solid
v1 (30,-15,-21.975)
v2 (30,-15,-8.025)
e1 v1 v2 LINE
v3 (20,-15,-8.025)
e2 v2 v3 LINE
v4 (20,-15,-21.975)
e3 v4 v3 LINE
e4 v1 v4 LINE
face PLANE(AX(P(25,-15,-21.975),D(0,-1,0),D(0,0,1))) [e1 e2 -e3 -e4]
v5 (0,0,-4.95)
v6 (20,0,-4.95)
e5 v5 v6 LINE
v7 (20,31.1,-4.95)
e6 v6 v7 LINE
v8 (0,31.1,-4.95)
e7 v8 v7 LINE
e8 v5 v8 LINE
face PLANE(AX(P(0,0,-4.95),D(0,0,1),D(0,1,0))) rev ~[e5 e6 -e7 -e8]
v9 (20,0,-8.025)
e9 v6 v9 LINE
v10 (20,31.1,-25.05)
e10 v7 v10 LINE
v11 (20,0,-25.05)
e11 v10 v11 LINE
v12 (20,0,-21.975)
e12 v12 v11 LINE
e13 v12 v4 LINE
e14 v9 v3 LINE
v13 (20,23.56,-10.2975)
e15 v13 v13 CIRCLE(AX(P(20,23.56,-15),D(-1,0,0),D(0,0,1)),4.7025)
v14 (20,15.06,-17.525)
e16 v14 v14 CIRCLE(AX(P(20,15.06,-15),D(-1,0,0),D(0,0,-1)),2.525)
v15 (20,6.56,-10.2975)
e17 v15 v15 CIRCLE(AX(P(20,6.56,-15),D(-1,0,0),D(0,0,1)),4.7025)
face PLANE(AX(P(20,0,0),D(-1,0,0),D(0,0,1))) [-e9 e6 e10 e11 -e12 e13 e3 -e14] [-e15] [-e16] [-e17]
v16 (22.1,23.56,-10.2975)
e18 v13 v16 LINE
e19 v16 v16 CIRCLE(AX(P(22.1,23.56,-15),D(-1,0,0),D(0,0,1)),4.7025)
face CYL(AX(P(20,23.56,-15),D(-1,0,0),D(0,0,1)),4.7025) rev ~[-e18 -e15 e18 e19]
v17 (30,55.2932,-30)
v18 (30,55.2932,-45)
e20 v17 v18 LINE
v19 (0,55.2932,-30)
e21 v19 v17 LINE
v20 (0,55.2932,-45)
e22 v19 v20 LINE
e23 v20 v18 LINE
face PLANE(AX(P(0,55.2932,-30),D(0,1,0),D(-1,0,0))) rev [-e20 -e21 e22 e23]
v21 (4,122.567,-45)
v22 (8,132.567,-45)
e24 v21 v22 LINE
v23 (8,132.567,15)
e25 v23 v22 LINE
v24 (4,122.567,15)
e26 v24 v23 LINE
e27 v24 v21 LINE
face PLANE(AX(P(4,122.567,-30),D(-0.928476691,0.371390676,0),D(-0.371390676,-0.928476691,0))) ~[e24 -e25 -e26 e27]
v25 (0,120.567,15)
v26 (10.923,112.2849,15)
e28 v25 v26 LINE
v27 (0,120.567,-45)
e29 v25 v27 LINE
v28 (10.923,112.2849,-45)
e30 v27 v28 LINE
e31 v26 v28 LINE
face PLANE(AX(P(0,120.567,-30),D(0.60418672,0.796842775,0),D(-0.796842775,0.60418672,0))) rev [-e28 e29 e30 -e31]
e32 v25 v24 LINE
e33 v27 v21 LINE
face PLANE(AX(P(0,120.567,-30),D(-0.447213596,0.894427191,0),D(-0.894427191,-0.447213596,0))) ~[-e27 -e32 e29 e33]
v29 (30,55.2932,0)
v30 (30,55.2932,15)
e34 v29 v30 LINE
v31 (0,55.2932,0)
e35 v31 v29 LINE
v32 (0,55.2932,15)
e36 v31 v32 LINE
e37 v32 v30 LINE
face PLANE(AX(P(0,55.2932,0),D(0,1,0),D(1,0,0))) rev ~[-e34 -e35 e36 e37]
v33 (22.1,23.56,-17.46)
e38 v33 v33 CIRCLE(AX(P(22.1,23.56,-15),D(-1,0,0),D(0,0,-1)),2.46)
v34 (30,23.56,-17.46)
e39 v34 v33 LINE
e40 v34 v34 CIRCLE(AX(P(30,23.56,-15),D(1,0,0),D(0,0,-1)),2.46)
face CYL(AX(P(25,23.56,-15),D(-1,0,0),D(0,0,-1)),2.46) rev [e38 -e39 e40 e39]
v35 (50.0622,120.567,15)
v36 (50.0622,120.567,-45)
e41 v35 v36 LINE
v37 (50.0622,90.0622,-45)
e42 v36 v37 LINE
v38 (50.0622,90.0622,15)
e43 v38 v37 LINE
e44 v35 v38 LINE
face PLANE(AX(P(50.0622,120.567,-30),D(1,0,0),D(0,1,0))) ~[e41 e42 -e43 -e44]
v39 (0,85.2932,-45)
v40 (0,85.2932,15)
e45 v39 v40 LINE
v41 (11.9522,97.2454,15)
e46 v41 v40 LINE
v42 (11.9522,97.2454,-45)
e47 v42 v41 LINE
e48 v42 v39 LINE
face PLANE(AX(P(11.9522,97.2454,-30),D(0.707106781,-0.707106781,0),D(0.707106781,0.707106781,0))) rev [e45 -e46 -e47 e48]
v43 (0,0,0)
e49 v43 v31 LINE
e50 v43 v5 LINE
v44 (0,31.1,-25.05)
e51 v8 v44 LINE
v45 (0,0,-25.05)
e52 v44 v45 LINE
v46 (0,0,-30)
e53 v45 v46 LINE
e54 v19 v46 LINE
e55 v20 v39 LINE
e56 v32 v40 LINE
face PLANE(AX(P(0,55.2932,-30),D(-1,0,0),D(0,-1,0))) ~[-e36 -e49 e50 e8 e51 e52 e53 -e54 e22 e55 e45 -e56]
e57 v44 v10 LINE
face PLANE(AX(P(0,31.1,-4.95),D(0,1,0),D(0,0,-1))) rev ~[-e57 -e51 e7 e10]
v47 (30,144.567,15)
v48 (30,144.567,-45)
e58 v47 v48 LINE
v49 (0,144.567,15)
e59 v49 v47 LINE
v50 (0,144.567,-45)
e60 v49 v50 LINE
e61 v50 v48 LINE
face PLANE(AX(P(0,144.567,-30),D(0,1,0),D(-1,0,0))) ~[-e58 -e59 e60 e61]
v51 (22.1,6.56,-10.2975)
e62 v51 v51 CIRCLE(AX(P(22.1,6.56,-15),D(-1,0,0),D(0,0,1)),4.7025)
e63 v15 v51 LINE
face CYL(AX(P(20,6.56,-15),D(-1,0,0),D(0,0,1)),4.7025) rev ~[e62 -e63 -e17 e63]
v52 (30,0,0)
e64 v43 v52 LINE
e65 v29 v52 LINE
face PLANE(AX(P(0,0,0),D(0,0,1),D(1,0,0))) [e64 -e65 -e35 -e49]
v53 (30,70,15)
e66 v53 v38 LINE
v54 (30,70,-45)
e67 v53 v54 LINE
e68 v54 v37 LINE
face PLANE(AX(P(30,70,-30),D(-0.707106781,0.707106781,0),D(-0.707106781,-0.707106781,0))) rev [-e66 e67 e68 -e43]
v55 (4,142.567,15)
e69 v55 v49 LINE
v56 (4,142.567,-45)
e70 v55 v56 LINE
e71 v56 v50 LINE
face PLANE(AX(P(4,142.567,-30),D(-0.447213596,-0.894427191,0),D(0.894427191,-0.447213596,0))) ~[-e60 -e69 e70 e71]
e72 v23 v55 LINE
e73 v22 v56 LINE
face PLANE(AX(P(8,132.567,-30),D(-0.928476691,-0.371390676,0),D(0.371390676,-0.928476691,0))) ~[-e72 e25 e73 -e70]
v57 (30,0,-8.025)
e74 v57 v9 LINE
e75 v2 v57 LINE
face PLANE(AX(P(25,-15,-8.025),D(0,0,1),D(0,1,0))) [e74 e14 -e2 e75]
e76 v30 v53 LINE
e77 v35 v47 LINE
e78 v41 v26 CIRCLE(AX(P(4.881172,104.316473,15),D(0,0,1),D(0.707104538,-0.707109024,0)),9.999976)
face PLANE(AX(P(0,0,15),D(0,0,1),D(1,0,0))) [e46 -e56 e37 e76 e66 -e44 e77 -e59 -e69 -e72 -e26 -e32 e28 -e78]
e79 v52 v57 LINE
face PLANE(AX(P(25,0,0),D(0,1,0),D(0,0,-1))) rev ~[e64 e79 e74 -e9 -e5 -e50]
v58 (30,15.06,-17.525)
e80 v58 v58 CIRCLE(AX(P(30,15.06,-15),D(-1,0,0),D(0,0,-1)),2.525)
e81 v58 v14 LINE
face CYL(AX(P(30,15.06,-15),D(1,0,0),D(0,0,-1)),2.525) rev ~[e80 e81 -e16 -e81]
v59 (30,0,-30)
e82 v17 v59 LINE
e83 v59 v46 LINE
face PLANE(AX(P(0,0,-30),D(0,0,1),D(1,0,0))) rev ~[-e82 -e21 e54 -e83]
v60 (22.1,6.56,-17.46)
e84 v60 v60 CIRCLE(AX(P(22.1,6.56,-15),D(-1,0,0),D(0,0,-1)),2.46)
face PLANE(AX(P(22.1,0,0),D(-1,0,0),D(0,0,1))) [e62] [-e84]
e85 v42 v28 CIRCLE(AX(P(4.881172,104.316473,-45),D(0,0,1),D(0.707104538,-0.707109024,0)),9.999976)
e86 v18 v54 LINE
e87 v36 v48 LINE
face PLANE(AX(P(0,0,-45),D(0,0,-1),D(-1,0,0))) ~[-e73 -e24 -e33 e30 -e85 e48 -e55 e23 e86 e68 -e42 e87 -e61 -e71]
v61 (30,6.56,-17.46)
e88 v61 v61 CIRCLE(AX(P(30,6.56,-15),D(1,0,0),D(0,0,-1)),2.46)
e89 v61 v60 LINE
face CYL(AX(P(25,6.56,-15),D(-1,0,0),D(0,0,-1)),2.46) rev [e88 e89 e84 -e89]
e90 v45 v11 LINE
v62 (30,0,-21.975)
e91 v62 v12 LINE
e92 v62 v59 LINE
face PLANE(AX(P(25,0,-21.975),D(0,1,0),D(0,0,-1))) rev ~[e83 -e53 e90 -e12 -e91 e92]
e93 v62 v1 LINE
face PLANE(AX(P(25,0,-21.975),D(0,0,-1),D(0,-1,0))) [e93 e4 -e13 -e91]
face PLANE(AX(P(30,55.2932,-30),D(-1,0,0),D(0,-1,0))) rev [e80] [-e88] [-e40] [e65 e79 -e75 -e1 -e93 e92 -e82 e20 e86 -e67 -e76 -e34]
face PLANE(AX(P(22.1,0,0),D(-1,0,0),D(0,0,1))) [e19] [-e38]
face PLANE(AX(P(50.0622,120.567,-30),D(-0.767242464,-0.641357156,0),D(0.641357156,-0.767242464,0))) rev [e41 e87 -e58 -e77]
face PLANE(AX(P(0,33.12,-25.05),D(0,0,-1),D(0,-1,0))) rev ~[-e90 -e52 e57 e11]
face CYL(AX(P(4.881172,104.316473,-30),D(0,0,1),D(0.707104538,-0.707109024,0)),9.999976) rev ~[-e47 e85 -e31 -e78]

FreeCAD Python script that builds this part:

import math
import FreeCAD as App
import Part
import Sketcher
Q = App.Units.Quantity

doc = App.newDocument("Part")
params = doc.addObject("Spreadsheet::Sheet", "Params")
for row, (alias, value) in enumerate([
    ("sketch1_width", "25 mm"),
    ("sketch1_height", "40 mm"),
    ("pad1_length", "30 mm"),
    ("sketch2_diameter", "4.92 mm"),
    ("pocket1_length", "30 mm"),
    ("sketch3_height", "20.1 mm"),
    ("sketch3_width", "33.12 mm"),
    ("pocket2_length", "20 mm"),
    ("sketch4_height", "13.95 mm"),
    ("sketch4_width", "5 mm"),
    ("pad2_length", "15 mm"),
    ("sketch5_diameter", "4.92 mm"),
    ("pocket3_length", "2.1 mm"),
    ("sketch6_diameter", "4.92 mm"),
    ("pocket4_length", "10 mm"),
    ("sketch7_diameter", "4.92 mm"),
    ("pocket5_length", "2.1 mm"),
    ("sketch8_diameter", "4.92 mm"),
    ("sketch8_width", "40 mm"),
    ("sketch8_width2", "15 mm"),
    ("sketch8_height", "30 mm"),
    ("sketch8_height2", "13.95 mm"),
    ("pad3_length", "5 mm"),
    ("sketch9_width", "30 mm"),
    ("pad4_length", "30 mm"),
    ("sketch10_diameter", "5.05 mm"),
    ("pocket6_length", "30 mm"),
    ("sketch11_width", "2.02 mm"),
    ("sketch11_height", "20.1 mm"),
    ("pad5_length", "20 mm"),
    ("sketch12_radius", "10 mm"),
    ("sketch12_width", "30 mm"),
    ("pad6_length", "30 mm"),
    ("sketch13_width", "30 mm"),
    ("sketch13_radius", "10 mm"),
    ("pad7_length", "15 mm"),
], start=1):
    params.set(f"A{row}", alias)
    params.set(f"B{row}", "=" + value)
    params.setAlias(f"B{row}", alias)

body = doc.addObject("PartDesign::Body", "Body")

# Sketch on XY plane
sketch1 = body.newObject("Sketcher::SketchObject", "Sketch")
sketch1.AttachmentSupport = (doc.getObject("XY_Plane"), [""])
sketch1.MapMode = "FlatFace"
sketch1.addGeometry([
    Part.LineSegment(App.Vector(0, 40, 0), App.Vector(0, 0, 0)),
    Part.LineSegment(App.Vector(0, 0, 0), App.Vector(25, 0, 0)),
    Part.LineSegment(App.Vector(25, 0, 0), App.Vector(25, 40, 0)),
    Part.LineSegment(App.Vector(25, 40, 0), App.Vector(0, 40, 0)),
], False)
sketch1.addConstraint([
    Sketcher.Constraint("Coincident", 0, 2, 1, 1),
    Sketcher.Constraint("Coincident", 1, 2, 2, 1),
    Sketcher.Constraint("Coincident", 2, 2, 3, 1),
    Sketcher.Constraint("Coincident", 3, 2, 0, 1),
    Sketcher.Constraint("Vertical", 0),
    Sketcher.Constraint("Horizontal", 1),
    Sketcher.Constraint("Vertical", 2),
    Sketcher.Constraint("Horizontal", 3),
    Sketcher.Constraint("Coincident", 0, 2, -1, 1),
    Sketcher.Constraint("DistanceX", 1, 1, 1, 2, Q("25 mm")),
    Sketcher.Constraint("DistanceY", 0, 2, 0, 1, Q("40 mm")),
])
sketch1.setExpression("Constraints[9]", "Params.sketch1_width")
sketch1.setExpression("Constraints[10]", "Params.sketch1_height")
pad1 = body.newObject("PartDesign::Pad", "Pad")
pad1.Profile = sketch1
pad1.setExpression("Length", "Params.pad1_length")
pad1.Reversed = True

# Sketch on YZ plane
sketch2 = body.newObject("Sketcher::SketchObject", "Sketch001")
sketch2.AttachmentSupport = (doc.getObject("YZ_Plane"), [""])
sketch2.MapMode = "FlatFace"
sketch2.AttachmentOffset = App.Placement(App.Vector(0, 0, 25), App.Rotation())
sketch2.addGeometry(Part.Circle(App.Vector(6.6, -15, 0), App.Vector(0, 0, 1), 2.5), False)
sketch2.addConstraint([
    Sketcher.Constraint("Diameter", 0, Q("4.92 mm")),
    Sketcher.Constraint("DistanceY", 0, 3, -1, 1, Q("15 mm")),
    Sketcher.Constraint("DistanceX", -1, 1, 0, 3, Q("6.56 mm")),
])
sketch2.setExpression("Constraints[0]", "Params.sketch2_diameter")
pocket1 = body.newObject("PartDesign::Pocket", "Pocket")
pocket1.Profile = sketch2
pocket1.setExpression("Length", "Params.pocket1_length")

# Sketch on YZ plane
sketch3 = body.newObject("Sketcher::SketchObject", "Sketch002")
sketch3.AttachmentSupport = (doc.getObject("YZ_Plane"), [""])
sketch3.MapMode = "FlatFace"
sketch3.addGeometry([
    Part.LineSegment(App.Vector(0, -25, 0), App.Vector(0, -5, 0)),
    Part.LineSegment(App.Vector(0, -5, 0), App.Vector(33, -5, 0)),
    Part.LineSegment(App.Vector(33, -5, 0), App.Vector(33, -25, 0)),
    Part.LineSegment(App.Vector(33, -25, 0), App.Vector(0, -25, 0)),
], False)
sketch3.addConstraint([
    Sketcher.Constraint("Coincident", 0, 2, 1, 1),
    Sketcher.Constraint("Coincident", 1, 2, 2, 1),
    Sketcher.Constraint("Coincident", 2, 2, 3, 1),
    Sketcher.Constraint("Coincident", 3, 2, 0, 1),
    Sketcher.Constraint("Vertical", 0),
    Sketcher.Constraint("Horizontal", 1),
    Sketcher.Constraint("Vertical", 2),
    Sketcher.Constraint("Horizontal", 3),
    Sketcher.Constraint("PointOnObject", 0, 2, -2),
    Sketcher.Constraint("DistanceY", 0, 1, 0, 2, Q("20.1 mm")),
    Sketcher.Constraint("DistanceX", 1, 1, 1, 2, Q("33.12 mm")),
    Sketcher.Constraint("DistanceY", 0, 2, -1, 1, Q("4.95 mm")),
])
sketch3.setExpression("Constraints[9]", "Params.sketch3_height")
sketch3.setExpression("Constraints[10]", "Params.sketch3_width")
pocket2 = body.newObject("PartDesign::Pocket", "Pocket001")
pocket2.Profile = sketch3
pocket2.setExpression("Length", "Params.pocket2_length")
pocket2.Reversed = True

# Sketch on XZ plane
sketch4 = body.newObject("Sketcher::SketchObject", "Sketch003")
sketch4.AttachmentSupport = (doc.getObject("XZ_Plane"), [""])
sketch4.MapMode = "FlatFace"
sketch4.addGeometry([
    Part.LineSegment(App.Vector(25, -8, 0), App.Vector(20, -8, 0)),
    Part.LineSegment(App.Vector(20, -8, 0), App.Vector(20, -22, 0)),
    Part.LineSegment(App.Vector(20, -22, 0), App.Vector(25, -22, 0)),
    Part.LineSegment(App.Vector(25, -22, 0), App.Vector(25, -8, 0)),
], False)
sketch4.addConstraint([
    Sketcher.Constraint("Coincident", 0, 2, 1, 1),
    Sketcher.Constraint("Coincident", 1, 2, 2, 1),
    Sketcher.Constraint("Coincident", 2, 2, 3, 1),
    Sketcher.Constraint("Coincident", 3, 2, 0, 1),
    Sketcher.Constraint("Horizontal", 0),
    Sketcher.Constraint("Vertical", 1),
    Sketcher.Constraint("Horizontal", 2),
    Sketcher.Constraint("Vertical", 3),
    Sketcher.Constraint("DistanceY", 1, 2, 1, 1, Q("13.95 mm")),
    Sketcher.Constraint("DistanceX", 0, 2, 0, 1, Q("5 mm")),
    Sketcher.Constraint("DistanceX", -1, 1, 0, 2, Q("20 mm")),
    Sketcher.Constraint("DistanceY", 0, 2, -1, 1, Q("8.025 mm")),
])
sketch4.setExpression("Constraints[8]", "Params.sketch4_height")
sketch4.setExpression("Constraints[9]", "Params.sketch4_width")
pad2 = body.newObject("PartDesign::Pad", "Pad001")
pad2.Profile = sketch4
pad2.setExpression("Length", "Params.pad2_length")

# Sketch on YZ plane
sketch5 = body.newObject("Sketcher::SketchObject", "Sketch004")
sketch5.AttachmentSupport = (doc.getObject("YZ_Plane"), [""])
sketch5.MapMode = "FlatFace"
sketch5.AttachmentOffset = App.Placement(App.Vector(0, 0, 20), App.Rotation())
sketch5.addGeometry([
    Part.Circle(App.Vector(6.6, -15, 0), App.Vector(0, 0, 1), 4.7),
    Part.Circle(App.Vector(6.6, -15, 0), App.Vector(0, 0, 1), 2.5),
], False)
sketch5.addConstraint([
    Sketcher.Constraint("Coincident", 1, 3, 0, 3),
    Sketcher.Constraint("Diameter", 0, Q("9.405 mm")),
    Sketcher.Constraint("Diameter", 1, Q("4.92 mm")),
    Sketcher.Constraint("DistanceY", 0, 3, -1, 1, Q("15 mm")),
    Sketcher.Constraint("DistanceX", -1, 1, 0, 3, Q("6.56 mm")),
])
sketch5.setExpression("Constraints[2]", "Params.sketch5_diameter")
pocket3 = body.newObject("PartDesign::Pocket", "Pocket002")
pocket3.Profile = sketch5
pocket3.setExpression("Length", "Params.pocket3_length")
pocket3.Reversed = True

# Sketch on YZ plane
sketch6 = body.newObject("Sketcher::SketchObject", "Sketch005")
sketch6.AttachmentSupport = (doc.getObject("YZ_Plane"), [""])
sketch6.MapMode = "FlatFace"
sketch6.AttachmentOffset = App.Placement(App.Vector(0, 0, 25), App.Rotation())
sketch6.addGeometry(Part.Circle(App.Vector(23.6, -15, 0), App.Vector(0, 0, 1), 2.5), False)
sketch6.addConstraint([
    Sketcher.Constraint("Diameter", 0, Q("4.92 mm")),
    Sketcher.Constraint("DistanceY", 0, 3, -1, 1, Q("15 mm")),
    Sketcher.Constraint("DistanceX", -1, 1, 0, 3, Q("23.56 mm")),
])
sketch6.setExpression("Constraints[0]", "Params.sketch6_diameter")
pocket4 = body.newObject("PartDesign::Pocket", "Pocket003")
pocket4.Profile = sketch6
pocket4.setExpression("Length", "Params.pocket4_length")

# Sketch on YZ plane
sketch7 = body.newObject("Sketcher::SketchObject", "Sketch006")
sketch7.AttachmentSupport = (doc.getObject("YZ_Plane"), [""])
sketch7.MapMode = "FlatFace"
sketch7.AttachmentOffset = App.Placement(App.Vector(0, 0, 20), App.Rotation())
sketch7.addGeometry([
    Part.Circle(App.Vector(23.6, -15, 0), App.Vector(0, 0, 1), 4.7),
    Part.Circle(App.Vector(23.6, -15, 0), App.Vector(0, 0, 1), 2.5),
], False)
sketch7.addConstraint([
    Sketcher.Constraint("Coincident", 1, 3, 0, 3),
    Sketcher.Constraint("Diameter", 0, Q("9.405 mm")),
    Sketcher.Constraint("Diameter", 1, Q("4.92 mm")),
    Sketcher.Constraint("DistanceY", 0, 3, -1, 1, Q("15 mm")),
    Sketcher.Constraint("DistanceX", -1, 1, 0, 3, Q("23.56 mm")),
])
sketch7.setExpression("Constraints[2]", "Params.sketch7_diameter")
pocket5 = body.newObject("PartDesign::Pocket", "Pocket004")
pocket5.Profile = sketch7
pocket5.setExpression("Length", "Params.pocket5_length")
pocket5.Reversed = True

# Sketch on YZ plane
sketch8 = body.newObject("Sketcher::SketchObject", "Sketch007")
sketch8.AttachmentSupport = (doc.getObject("YZ_Plane"), [""])
sketch8.MapMode = "FlatFace"
sketch8.AttachmentOffset = App.Placement(App.Vector(0, 0, 25), App.Rotation())
sketch8.addGeometry([
    Part.LineSegment(App.Vector(0, -30, 0), App.Vector(40, -30, 0)),  # 0
    Part.LineSegment(App.Vector(40, -30, 0), App.Vector(40, 0, 0)),  # 1
    Part.LineSegment(App.Vector(40, 0, 0), App.Vector(0, 0, 0)),  # 2
    Part.LineSegment(App.Vector(0, 0, 0), App.Vector(0, -8, 0)),  # 3
    Part.LineSegment(App.Vector(0, -8, 0), App.Vector(-15, -8, 0)),  # 4
    Part.LineSegment(App.Vector(-15, -8, 0), App.Vector(-15, -22, 0)),  # 5
    Part.LineSegment(App.Vector(-15, -22, 0), App.Vector(0, -22, 0)),  # 6
    Part.LineSegment(App.Vector(0, -22, 0), App.Vector(0, -30, 0)),  # 7
    Part.Circle(App.Vector(6.6, -15, 0), App.Vector(0, 0, 1), 2.5),  # 8
    Part.Circle(App.Vector(23.6, -15, 0), App.Vector(0, 0, 1), 2.5),  # 9
], False)
sketch8.addConstraint([
    Sketcher.Constraint("Coincident", 0, 2, 1, 1),
    Sketcher.Constraint("Coincident", 1, 2, 2, 1),
    Sketcher.Constraint("Coincident", 2, 2, 3, 1),
    Sketcher.Constraint("Coincident", 3, 2, 4, 1),
    Sketcher.Constraint("Coincident", 4, 2, 5, 1),
    Sketcher.Constraint("Coincident", 5, 2, 6, 1),
    Sketcher.Constraint("Coincident", 6, 2, 7, 1),
    Sketcher.Constraint("Coincident", 7, 2, 0, 1),
    Sketcher.Constraint("Horizontal", 0),
    Sketcher.Constraint("Vertical", 1),
    Sketcher.Constraint("Horizontal", 2),
    Sketcher.Constraint("Vertical", 3),
    Sketcher.Constraint("Horizontal", 4),
    Sketcher.Constraint("Vertical", 5),
    Sketcher.Constraint("Horizontal", 6),
    Sketcher.Constraint("Vertical", 7),
    Sketcher.Constraint("Coincident", 2, 2, -1, 1),
    Sketcher.Constraint("Equal", 8, 9),
    Sketcher.Constraint("PointOnObject", 6, 2, -2),
    Sketcher.Constraint("Horizontal", 8, 3, 9, 3),
    Sketcher.Constraint("Equal", 3, 7),
    Sketcher.Constraint("Diameter", 8, Q("4.92 mm")),
    Sketcher.Constraint("DistanceX", 0, 1, 0, 2, Q("40 mm")),
    Sketcher.Constraint("DistanceX", 4, 2, 4, 1, Q("15 mm")),
    Sketcher.Constraint("DistanceY", 1, 1, 1, 2, Q("30 mm")),
    Sketcher.Constraint("DistanceY", 8, 3, -1, 1, Q("15 mm")),
    Sketcher.Constraint("DistanceX", 8, 3, 9, 3, Q("17 mm")),
    Sketcher.Constraint("DistanceY", 5, 2, 5, 1, Q("13.95 mm")),
    Sketcher.Constraint("DistanceX", -1, 1, 8, 3, Q("6.56 mm")),
])
sketch8.setExpression("Constraints[21]", "Params.sketch8_diameter")
sketch8.setExpression("Constraints[22]", "Params.sketch8_width")
sketch8.setExpression("Constraints[23]", "Params.sketch8_width2")
sketch8.setExpression("Constraints[24]", "Params.sketch8_height")
sketch8.setExpression("Constraints[27]", "Params.sketch8_height2")
pad3 = body.newObject("PartDesign::Pad", "Pad002")
pad3.Profile = sketch8
pad3.setExpression("Length", "Params.pad3_length")

# Sketch on XZ plane
sketch9 = body.newObject("Sketcher::SketchObject", "Sketch008")
sketch9.AttachmentSupport = (doc.getObject("XZ_Plane"), [""])
sketch9.MapMode = "FlatFace"
sketch9.AttachmentOffset = App.Placement(App.Vector(0, 0, -40), App.Rotation())
sketch9.addGeometry([
    Part.LineSegment(App.Vector(30, -30, 0), App.Vector(0, -30, 0)),
    Part.LineSegment(App.Vector(0, -30, 0), App.Vector(0, 0, 0)),
    Part.LineSegment(App.Vector(0, 0, 0), App.Vector(30, 0, 0)),
    Part.LineSegment(App.Vector(30, 0, 0), App.Vector(30, -30, 0)),
], False)
sketch9.addConstraint([
    Sketcher.Constraint("Coincident", 0, 2, 1, 1),
    Sketcher.Constraint("Coincident", 1, 2, 2, 1),
    Sketcher.Constraint("Coincident", 2, 2, 3, 1),
    Sketcher.Constraint("Coincident", 3, 2, 0, 1),
    Sketcher.Constraint("Horizontal", 0),
    Sketcher.Constraint("Vertical", 1),
    Sketcher.Constraint("Horizontal", 2),
    Sketcher.Constraint("Vertical", 3),
    Sketcher.Constraint("Coincident", 1, 2, -1, 1),
    Sketcher.Constraint("Equal", 2, 1),
    Sketcher.Constraint("DistanceX", 0, 2, 0, 1, Q("30 mm")),
])
sketch9.setExpression("Constraints[10]", "Params.sketch9_width")
pad4 = body.newObject("PartDesign::Pad", "Pad003")
pad4.Profile = sketch9
pad4.setExpression("Length", "Params.pad4_length")
pad4.Reversed = True

# Sketch on YZ plane
sketch10 = body.newObject("Sketcher::SketchObject", "Sketch009")
sketch10.AttachmentSupport = (doc.getObject("YZ_Plane"), [""])
sketch10.MapMode = "FlatFace"
sketch10.AttachmentOffset = App.Placement(App.Vector(0, 0, 30), App.Rotation())
sketch10.addGeometry(Part.Circle(App.Vector(15.1, -15, 0), App.Vector(0, 0, 1), 2.5), False)
sketch10.addConstraint([
    Sketcher.Constraint("Diameter", 0, Q("5.05 mm")),
    Sketcher.Constraint("DistanceY", 0, 3, -1, 1, Q("15 mm")),
    Sketcher.Constraint("DistanceX", -1, 1, 0, 3, Q("15.06 mm")),
])
sketch10.setExpression("Constraints[0]", "Params.sketch10_diameter")
pocket6 = body.newObject("PartDesign::Pocket", "Pocket005")
pocket6.Profile = sketch10
pocket6.setExpression("Length", "Params.pocket6_length")

# Sketch on YZ plane
sketch11 = body.newObject("Sketcher::SketchObject", "Sketch010")
sketch11.AttachmentSupport = (doc.getObject("YZ_Plane"), [""])
sketch11.MapMode = "FlatFace"
sketch11.addGeometry([
    Part.LineSegment(App.Vector(33.1, -5, 0), App.Vector(33.1, -25.1, 0)),
    Part.LineSegment(App.Vector(33.1, -25.1, 0), App.Vector(31.1, -25.1, 0)),
    Part.LineSegment(App.Vector(31.1, -25.1, 0), App.Vector(31.1, -5, 0)),
    Part.LineSegment(App.Vector(31.1, -5, 0), App.Vector(33.1, -5, 0)),
], False)
sketch11.addConstraint([
    Sketcher.Constraint("Coincident", 0, 2, 1, 1),
    Sketcher.Constraint("Coincident", 1, 2, 2, 1),
    Sketcher.Constraint("Coincident", 2, 2, 3, 1),
    Sketcher.Constraint("Coincident", 3, 2, 0, 1),
    Sketcher.Constraint("Vertical", 0),
    Sketcher.Constraint("Horizontal", 1),
    Sketcher.Constraint("Vertical", 2),
    Sketcher.Constraint("Horizontal", 3),
    Sketcher.Constraint("DistanceX", 1, 2, 1, 1, Q("2.02 mm")),
    Sketcher.Constraint("DistanceY", 0, 2, 0, 1, Q("20.1 mm")),
    Sketcher.Constraint("DistanceX", -1, 1, 1, 2, Q("31.1 mm")),
    Sketcher.Constraint("DistanceY", 0, 2, -1, 1, Q("25.05 mm")),
])
sketch11.setExpression("Constraints[8]", "Params.sketch11_width")
sketch11.setExpression("Constraints[9]", "Params.sketch11_height")
pad5 = body.newObject("PartDesign::Pad", "Pad004")
pad5.Profile = sketch11
pad5.setExpression("Length", "Params.pad5_length")

# Sketch on XY plane
sketch12 = body.newObject("Sketcher::SketchObject", "Sketch011")
sketch12.AttachmentSupport = (doc.getObject("XY_Plane"), [""])
sketch12.MapMode = "FlatFace"
sketch12.addGeometry([
    Part.LineSegment(App.Vector(0, 85.3, 0), App.Vector(0, 70, 0)),  # 0
    Part.LineSegment(App.Vector(0, 70, 0), App.Vector(30, 70, 0)),  # 1
    Part.LineSegment(App.Vector(30, 70, 0), App.Vector(50.1, 90.1, 0)),  # 2
    Part.LineSegment(App.Vector(50.1, 90.1, 0), App.Vector(50.1, 120.6, 0)),  # 3
    Part.LineSegment(App.Vector(50.1, 120.6, 0), App.Vector(30, 144.6, 0)),  # 4
    Part.LineSegment(App.Vector(30, 144.6, 0), App.Vector(0, 144.6, 0)),  # 5
    Part.LineSegment(App.Vector(0, 144.6, 0), App.Vector(4, 142.6, 0)),  # 6
    Part.LineSegment(App.Vector(4, 142.6, 0), App.Vector(8, 132.6, 0)),  # 7
    Part.LineSegment(App.Vector(8, 132.6, 0), App.Vector(4, 122.6, 0)),  # 8
    Part.LineSegment(App.Vector(4, 122.6, 0), App.Vector(0, 120.6, 0)),  # 9
    Part.LineSegment(App.Vector(0, 120.6, 0), App.Vector(10.9, 112.3, 0)),  # 10
    Part.ArcOfCircle(Part.Circle(App.Vector(4.9, 104.3, 0), App.Vector(0, 0, 1), 10), math.radians(-45), math.radians(53)),  # 11
    Part.LineSegment(App.Vector(12, 97.2, 0), App.Vector(0, 85.3, 0)),  # 12
], False)
sketch12.addConstraint([
    Sketcher.Constraint("Coincident", 0, 2, 1, 1),
    Sketcher.Constraint("Coincident", 1, 2, 2, 1),
    Sketcher.Constraint("Coincident", 2, 2, 3, 1),
    Sketcher.Constraint("Coincident", 3, 2, 4, 1),
    Sketcher.Constraint("Coincident", 4, 2, 5, 1),
    Sketcher.Constraint("Coincident", 5, 2, 6, 1),
    Sketcher.Constraint("Coincident", 6, 2, 7, 1),
    Sketcher.Constraint("Coincident", 7, 2, 8, 1),
    Sketcher.Constraint("Coincident", 8, 2, 9, 1),
    Sketcher.Constraint("Coincident", 9, 2, 10, 1),
    Sketcher.Constraint("Tangent", 10, 2, 11, 2),
    Sketcher.Constraint("Tangent", 11, 1, 12, 1),
    Sketcher.Constraint("Coincident", 12, 2, 0, 1),
    Sketcher.Constraint("Vertical", 0),
    Sketcher.Constraint("Horizontal", 1),
    Sketcher.Constraint("Vertical", 3),
    Sketcher.Constraint("Horizontal", 5),
    Sketcher.Constraint("PointOnObject", 0, 2, -2),
    Sketcher.Constraint("PointOnObject", 5, 2, -2),
    Sketcher.Constraint("PointOnObject", 9, 2, -2),
    Sketcher.Constraint("Parallel", 2, 12),
    Sketcher.Constraint("Horizontal", 3, 2, 9, 2),
    Sketcher.Constraint("Vertical", 1, 2, 4, 2),
    Sketcher.Constraint("Vertical", 6, 2, 8, 2),
    Sketcher.Constraint("Equal", 7, 8),
    Sketcher.Constraint("Equal", 6, 9),
    Sketcher.Constraint("Radius", 11, Q("10 mm")),
    Sketcher.Constraint("Angle", 2, Q("45 deg")),
    Sketcher.Constraint("DistanceY", 7, 2, 6, 2, Q("10 mm")),
    Sketcher.Constraint("DistanceX", 1, 1, 1, 2, Q("30 mm")),
    Sketcher.Constraint("DistanceY", -1, 1, 0, 2, Q("70 mm")),
    Sketcher.Constraint("DistanceX", -1, 1, 6, 2, Q("4 mm")),
    Sketcher.Constraint("DistanceX", -1, 1, 7, 2, Q("8 mm")),
    Sketcher.Constraint("DistanceY", 3, 2, 4, 2, Q("24 mm")),
    Sketcher.Constraint("Angle", 10, Q("-37.1703 deg")),
    Sketcher.Constraint("Distance", 12, Q("16.903 mm")),
    Sketcher.Constraint("DistanceY", 0, 2, 0, 1, Q("15.2932 mm")),
    Sketcher.Constraint("DistanceY", 3, 1, 3, 2, Q("30.5048 mm")),
])
sketch12.setExpression("Constraints[26]", "Params.sketch12_radius")
sketch12.setExpression("Constraints[29]", "Params.sketch12_width")
pad6 = body.newObject("PartDesign::Pad", "Pad005")
pad6.Profile = sketch12
pad6.setExpression("Length", "Params.pad6_length")
pad6.Reversed = True

# Sketch on XY plane
sketch13 = body.newObject("Sketcher::SketchObject", "Sketch012")
sketch13.AttachmentSupport = (doc.getObject("XY_Plane"), [""])
sketch13.MapMode = "FlatFace"
sketch13.addGeometry([
    Part.ArcOfCircle(Part.Circle(App.Vector(4.9, 104.3, 0), App.Vector(0, 0, 1), 10), math.radians(-45), math.radians(53)),  # 0
    Part.LineSegment(App.Vector(12, 97.2, 0), App.Vector(0, 85.3, 0)),  # 1
    Part.LineSegment(App.Vector(0, 85.3, 0), App.Vector(0, 55.3, 0)),  # 2
    Part.LineSegment(App.Vector(0, 55.3, 0), App.Vector(30, 55.3, 0)),  # 3
    Part.LineSegment(App.Vector(30, 55.3, 0), App.Vector(30, 70, 0)),  # 4
    Part.LineSegment(App.Vector(30, 70, 0), App.Vector(50.1, 90.1, 0)),  # 5
    Part.LineSegment(App.Vector(50.1, 90.1, 0), App.Vector(50.1, 120.6, 0)),  # 6
    Part.LineSegment(App.Vector(50.1, 120.6, 0), App.Vector(30, 144.6, 0)),  # 7
    Part.LineSegment(App.Vector(30, 144.6, 0), App.Vector(0, 144.6, 0)),  # 8
    Part.LineSegment(App.Vector(0, 144.6, 0), App.Vector(4, 142.6, 0)),  # 9
    Part.LineSegment(App.Vector(4, 142.6, 0), App.Vector(8, 132.6, 0)),  # 10
    Part.LineSegment(App.Vector(8, 132.6, 0), App.Vector(4, 122.6, 0)),  # 11
    Part.LineSegment(App.Vector(4, 122.6, 0), App.Vector(0, 120.6, 0)),  # 12
    Part.LineSegment(App.Vector(0, 120.6, 0), App.Vector(10.9, 112.3, 0)),  # 13
], False)
sketch13.addConstraint([
    Sketcher.Constraint("Tangent", 0, 1, 1, 1),
    Sketcher.Constraint("Coincident", 1, 2, 2, 1),
    Sketcher.Constraint("Coincident", 2, 2, 3, 1),
    Sketcher.Constraint("Coincident", 3, 2, 4, 1),
    Sketcher.Constraint("Coincident", 4, 2, 5, 1),
    Sketcher.Constraint("Coincident", 5, 2, 6, 1),
    Sketcher.Constraint("Coincident", 6, 2, 7, 1),
    Sketcher.Constraint("Coincident", 7, 2, 8, 1),
    Sketcher.Constraint("Coincident", 8, 2, 9, 1),
    Sketcher.Constraint("Coincident", 9, 2, 10, 1),
    Sketcher.Constraint("Coincident", 10, 2, 11, 1),
    Sketcher.Constraint("Coincident", 11, 2, 12, 1),
    Sketcher.Constraint("Coincident", 12, 2, 13, 1),
    Sketcher.Constraint("Tangent", 13, 2, 0, 2),
    Sketcher.Constraint("Vertical", 2),
    Sketcher.Constraint("Horizontal", 3),
    Sketcher.Constraint("Vertical", 4),
    Sketcher.Constraint("Vertical", 6),
    Sketcher.Constraint("Horizontal", 8),
    Sketcher.Constraint("PointOnObject", 1, 2, -2),
    Sketcher.Constraint("PointOnObject", 8, 2, -2),
    Sketcher.Constraint("PointOnObject", 12, 2, -2),
    Sketcher.Constraint("Parallel", 1, 5),
    Sketcher.Constraint("Horizontal", 6, 2, 12, 2),
    Sketcher.Constraint("Vertical", 4, 2, 7, 2),
    Sketcher.Constraint("Vertical", 9, 2, 11, 2),
    Sketcher.Constraint("Equal", 8, 2),
    Sketcher.Constraint("Equal", 10, 11),
    Sketcher.Constraint("Equal", 9, 12),
    Sketcher.Constraint("DistanceX", 3, 1, 3, 2, Q("30 mm")),
    Sketcher.Constraint("Radius", 0, Q("10 mm")),
    Sketcher.Constraint("Angle", 1, Q("-135 deg")),
    Sketcher.Constraint("DistanceY", -1, 1, 4, 2, Q("70 mm")),
    Sketcher.Constraint("DistanceX", -1, 1, 9, 2, Q("4 mm")),
    Sketcher.Constraint("DistanceX", -1, 1, 10, 2, Q("8 mm")),
    Sketcher.Constraint("DistanceY", 6, 2, 7, 2, Q("24 mm")),
    Sketcher.Constraint("DistanceY", 9, 2, 8, 2, Q("2 mm")),
    Sketcher.Constraint("Angle", 13, Q("-37.1703 deg")),
    Sketcher.Constraint("DistanceX", 0, 1, 5, 2, Q("38.11 mm")),
    Sketcher.Constraint("Distance", 1, Q("16.903 mm")),
    Sketcher.Constraint("DistanceY", 4, 1, 4, 2, Q("14.7068 mm")),
])
sketch13.setExpression("Constraints[29]", "Params.sketch13_width")
sketch13.setExpression("Constraints[30]", "Params.sketch13_radius")
pad7 = body.newObject("PartDesign::Pad", "Pad006")
pad7.Profile = sketch13
pad7.setExpression("Length", "Params.pad7_length")
doc.recompute()

datumplane = body.newObject("PartDesign::Plane", "DatumPlane")
datumplane.AttachmentSupport = (doc.getObject("XY_Plane"), [""])
datumplane.MapMode = "FlatFace"
datumplane.AttachmentOffset = App.Placement(App.Vector(0, 0, -15), App.Rotation())
mirrored = body.newObject("PartDesign::Mirrored", "Mirrored")
mirrored.Originals = [pad7]
mirrored.MirrorPlane = (datumplane, [""])
body.Tip = mirrored

doc.recompute()
